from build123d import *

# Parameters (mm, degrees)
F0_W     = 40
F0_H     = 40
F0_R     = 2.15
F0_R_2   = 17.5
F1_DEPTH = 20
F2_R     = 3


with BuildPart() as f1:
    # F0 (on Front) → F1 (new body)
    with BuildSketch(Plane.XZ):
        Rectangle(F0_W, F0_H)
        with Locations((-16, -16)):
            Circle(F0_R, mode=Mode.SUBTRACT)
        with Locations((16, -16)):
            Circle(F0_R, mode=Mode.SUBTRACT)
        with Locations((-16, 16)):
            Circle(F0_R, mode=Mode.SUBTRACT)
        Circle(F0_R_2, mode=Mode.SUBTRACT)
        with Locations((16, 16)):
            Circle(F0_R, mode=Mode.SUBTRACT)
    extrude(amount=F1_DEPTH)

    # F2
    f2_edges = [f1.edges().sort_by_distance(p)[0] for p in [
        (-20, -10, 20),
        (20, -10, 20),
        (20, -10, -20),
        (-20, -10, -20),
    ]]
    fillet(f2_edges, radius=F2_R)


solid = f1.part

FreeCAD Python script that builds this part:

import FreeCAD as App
import Part
import Sketcher


def edges_at(feature, points):
    """Names of the edges that pass closest to the given points."""
    edges = feature.Shape.Edges
    near = lambda p: min(range(len(edges)), key=lambda i: edges[i].distToShape(Part.Vertex(*p))[0])
    return sorted({f"Edge{near(p) + 1}" for p in points})

doc = App.newDocument("Part")
body = doc.addObject("PartDesign::Body", "Body")

sketch1 = body.newObject("Sketcher::SketchObject", "Sketch")
sketch1.AttachmentSupport = (doc.getObject("XZ_Plane"), [""])
sketch1.MapMode = "FlatFace"
sketch1.addGeometry(Part.LineSegment(App.Vector(-20, 20, 0), App.Vector(-20, -20, 0)), False)
sketch1.addGeometry(Part.LineSegment(App.Vector(-20, -20, 0), App.Vector(20, -20, 0)), False)
sketch1.addGeometry(Part.LineSegment(App.Vector(20, -20, 0), App.Vector(20, 20, 0)), False)
sketch1.addGeometry(Part.LineSegment(App.Vector(20, 20, 0), App.Vector(-20, 20, 0)), False)
sketch1.addGeometry(Part.Circle(App.Vector(-16, -16, 0), App.Vector(0, 0, 1), 2.1), False)
sketch1.addGeometry(Part.Circle(App.Vector(16, -16, 0), App.Vector(0, 0, 1), 2.1), False)
sketch1.addGeometry(Part.Circle(App.Vector(-16, 16, 0), App.Vector(0, 0, 1), 2.1), False)
sketch1.addGeometry(Part.Circle(App.Vector(0, 0, 0), App.Vector(0, 0, 1), 17.5), False)
sketch1.addGeometry(Part.Circle(App.Vector(16, 16, 0), App.Vector(0, 0, 1), 2.1), False)
sketch1.addConstraint(Sketcher.Constraint("Coincident", 0, 2, 1, 1))
sketch1.addConstraint(Sketcher.Constraint("Coincident", 1, 2, 2, 1))
sketch1.addConstraint(Sketcher.Constraint("Coincident", 2, 2, 3, 1))
sketch1.addConstraint(Sketcher.Constraint("Coincident", 3, 2, 0, 1))
sketch1.addConstraint(Sketcher.Constraint("Vertical", 0))
sketch1.addConstraint(Sketcher.Constraint("Horizontal", 1))
sketch1.addConstraint(Sketcher.Constraint("Vertical", 2))
sketch1.addConstraint(Sketcher.Constraint("Horizontal", 3))
sketch1.addConstraint(Sketcher.Constraint("Coincident", 7, 3, -1, 1))
sketch1.addConstraint(Sketcher.Constraint("Equal", 4, 5))
sketch1.addConstraint(Sketcher.Constraint("Equal", 5, 6))
sketch1.addConstraint(Sketcher.Constraint("Equal", 6, 8))
sketch1.addConstraint(Sketcher.Constraint("Symmetric", 5, 3, 6, 3, -1, 1))
sketch1.addConstraint(Sketcher.Constraint("Symmetric", 4, 3, 8, 3, -1, 1))
sketch1.addConstraint(Sketcher.Constraint("Symmetric", 0, 2, 2, 2, -1, 1))
sketch1.addConstraint(Sketcher.Constraint("Symmetric", 4, 3, 5, 3, -2))
sketch1.addConstraint(Sketcher.Constraint("Equal", 3, 0))
sketch1.addConstraint(Sketcher.Constraint("Diameter", 7, 35.0))
sketch1.addConstraint(Sketcher.Constraint("Diameter", 4, 4.3))
sketch1.addConstraint(Sketcher.Constraint("DistanceX", 1, 1, 1, 2, 40.0))
sketch1.addConstraint(Sketcher.Constraint("DistanceX", 4, 3, -1, 1, 16.0))
sketch1.addConstraint(Sketcher.Constraint("DistanceY", 4, 3, -1, 1, 16.0))
pad1 = body.newObject("PartDesign::Pad", "Pad")
pad1.Profile = sketch1
pad1.Length = 20
doc.recompute()

fillet = body.newObject("PartDesign::Fillet", "Fillet")
fillet.Base = (pad1, edges_at(pad1, [
    (-20, -10, 20),
    (20, -10, 20),
    (20, -10, -20),
    (-20, -10, -20),
]))
fillet.Radius = 3

doc.recompute()
